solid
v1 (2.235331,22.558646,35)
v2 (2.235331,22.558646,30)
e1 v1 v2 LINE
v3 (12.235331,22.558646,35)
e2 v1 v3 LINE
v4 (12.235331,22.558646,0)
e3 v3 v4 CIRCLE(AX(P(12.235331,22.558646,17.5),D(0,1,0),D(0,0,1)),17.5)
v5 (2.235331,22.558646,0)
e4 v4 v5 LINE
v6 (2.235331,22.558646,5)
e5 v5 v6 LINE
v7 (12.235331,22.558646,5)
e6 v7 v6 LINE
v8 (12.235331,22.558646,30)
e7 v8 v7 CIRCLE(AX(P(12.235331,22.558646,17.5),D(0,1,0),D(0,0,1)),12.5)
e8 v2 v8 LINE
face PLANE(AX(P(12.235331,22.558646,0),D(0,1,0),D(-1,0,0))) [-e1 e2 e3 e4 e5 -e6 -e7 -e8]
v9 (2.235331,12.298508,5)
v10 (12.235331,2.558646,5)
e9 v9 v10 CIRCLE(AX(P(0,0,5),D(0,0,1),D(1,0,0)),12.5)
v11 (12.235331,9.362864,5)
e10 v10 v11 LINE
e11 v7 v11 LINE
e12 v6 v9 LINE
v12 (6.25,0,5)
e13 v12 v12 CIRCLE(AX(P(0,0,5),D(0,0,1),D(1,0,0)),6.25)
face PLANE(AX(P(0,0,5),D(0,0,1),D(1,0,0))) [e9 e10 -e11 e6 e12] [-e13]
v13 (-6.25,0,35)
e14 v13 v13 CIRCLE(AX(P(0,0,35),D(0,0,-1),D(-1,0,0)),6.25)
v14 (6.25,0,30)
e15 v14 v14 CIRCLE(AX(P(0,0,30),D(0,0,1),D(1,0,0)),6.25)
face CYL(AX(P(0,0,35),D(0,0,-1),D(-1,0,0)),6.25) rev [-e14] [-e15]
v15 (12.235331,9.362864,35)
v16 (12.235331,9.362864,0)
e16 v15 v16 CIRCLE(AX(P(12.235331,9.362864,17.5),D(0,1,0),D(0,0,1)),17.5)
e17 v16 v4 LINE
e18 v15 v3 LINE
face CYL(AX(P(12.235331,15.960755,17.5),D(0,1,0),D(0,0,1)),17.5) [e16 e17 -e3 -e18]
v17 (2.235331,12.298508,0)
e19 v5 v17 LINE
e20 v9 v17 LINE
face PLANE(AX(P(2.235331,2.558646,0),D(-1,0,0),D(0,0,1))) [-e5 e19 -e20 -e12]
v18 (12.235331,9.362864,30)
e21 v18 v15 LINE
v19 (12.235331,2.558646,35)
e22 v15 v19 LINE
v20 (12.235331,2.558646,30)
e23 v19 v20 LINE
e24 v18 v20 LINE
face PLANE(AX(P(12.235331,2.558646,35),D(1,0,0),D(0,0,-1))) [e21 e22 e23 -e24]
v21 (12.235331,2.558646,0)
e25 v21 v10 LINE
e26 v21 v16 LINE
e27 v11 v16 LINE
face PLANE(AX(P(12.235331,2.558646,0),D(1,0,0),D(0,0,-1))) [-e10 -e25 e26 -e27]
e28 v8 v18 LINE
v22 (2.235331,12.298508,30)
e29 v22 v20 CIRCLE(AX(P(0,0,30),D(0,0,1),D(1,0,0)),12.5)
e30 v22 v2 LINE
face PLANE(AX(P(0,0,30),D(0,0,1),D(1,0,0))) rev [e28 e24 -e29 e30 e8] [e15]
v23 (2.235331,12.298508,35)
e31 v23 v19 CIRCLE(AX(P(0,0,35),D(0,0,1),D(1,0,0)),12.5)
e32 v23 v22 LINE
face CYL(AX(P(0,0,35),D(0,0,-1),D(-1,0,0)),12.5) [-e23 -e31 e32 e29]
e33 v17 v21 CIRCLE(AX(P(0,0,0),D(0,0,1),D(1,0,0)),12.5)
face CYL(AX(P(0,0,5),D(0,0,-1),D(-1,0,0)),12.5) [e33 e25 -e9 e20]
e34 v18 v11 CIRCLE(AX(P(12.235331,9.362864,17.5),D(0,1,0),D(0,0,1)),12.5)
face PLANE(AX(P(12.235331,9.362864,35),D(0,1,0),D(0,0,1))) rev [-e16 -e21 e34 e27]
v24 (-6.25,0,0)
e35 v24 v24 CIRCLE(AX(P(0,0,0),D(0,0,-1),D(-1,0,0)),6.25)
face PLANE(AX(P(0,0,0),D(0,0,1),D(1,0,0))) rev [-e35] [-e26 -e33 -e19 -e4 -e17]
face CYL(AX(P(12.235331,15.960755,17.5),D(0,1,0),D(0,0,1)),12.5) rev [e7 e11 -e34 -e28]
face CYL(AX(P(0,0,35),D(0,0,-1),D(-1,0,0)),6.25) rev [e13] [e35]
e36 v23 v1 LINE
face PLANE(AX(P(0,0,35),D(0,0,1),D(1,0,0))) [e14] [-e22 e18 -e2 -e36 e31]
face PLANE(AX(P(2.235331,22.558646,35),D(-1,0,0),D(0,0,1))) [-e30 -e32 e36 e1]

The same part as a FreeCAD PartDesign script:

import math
import FreeCAD as App
import Part
import Sketcher
from FreeCAD import Vector
Q = App.Units.Quantity

doc = App.newDocument("Part")
params = doc.addObject("Spreadsheet::Sheet", "Params")
for row, (alias, value) in enumerate([
    ("sketch1_diameter", "25 mm"),
    ("pad1_length", "5 mm"),
    ("sketch2_width", "10 mm"),
    ("sketch2_height", "20 mm"),
    ("pad2_length", "5 mm"),
    ("sketch3_diameter", "25 mm"),
    ("pad3_length", "5 mm"),
    ("sketch4_width", "10 mm"),
    ("sketch4_height", "20 mm"),
    ("pad4_length", "5 mm"),
    ("sketch5_diameter", "12.5 mm"),
    ("pad5_length", "35 mm"),
    ("sketch6_height", "5 mm"),
    ("sketch7_radius", "15 mm"),
], start=1):
    params.set(f"A{row}", alias)
    params.set(f"B{row}", "=" + value)
    params.setAlias(f"B{row}", alias)

body = doc.addObject("PartDesign::Body", "Body")

sketch1 = doc.addObject("Sketcher::SketchObject", "Sketch")
body.addObject(sketch1)
sketch1.AttachmentSupport = (doc.XY_Plane, [""])
sketch1.MapMode = "FlatFace"
sketch1.addGeometry(Part.Circle(Vector(0, 0, 0), Vector(0, 0, 1), 12), False)
sketch1.addConstraint(Sketcher.Constraint("Coincident", 0, 3, -1, 1))
sketch1.addConstraint(Sketcher.Constraint("Diameter", 0, Q("25 mm")))
sketch1.setExpression("Constraints[1]", "Params.sketch1_diameter")
pad1 = doc.addObject("PartDesign::Pad", "Pad")
body.addObject(pad1)
pad1.Profile = sketch1
pad1.setExpression("Length", "Params.pad1_length")

sketch2 = doc.addObject("Sketcher::SketchObject", "Sketch001")
body.addObject(sketch2)
sketch2.AttachmentSupport = (doc.XY_Plane, [""])
sketch2.MapMode = "FlatFace"
sketch2.AttachmentOffset = App.Placement(Vector(0, 0, 5), App.Rotation())
sketch2.addGeometry(Part.LineSegment(Vector(2, 23, 0), Vector(2, 3, 0)), False)
sketch2.addGeometry(Part.LineSegment(Vector(2, 3, 0), Vector(12, 3, 0)), False)
sketch2.addGeometry(Part.LineSegment(Vector(12, 3, 0), Vector(12, 23, 0)), False)
sketch2.addGeometry(Part.LineSegment(Vector(12, 23, 0), Vector(2, 23, 0)), False)
sketch2.addConstraint(Sketcher.Constraint("Coincident", 0, 2, 1, 1))
sketch2.addConstraint(Sketcher.Constraint("Coincident", 1, 2, 2, 1))
sketch2.addConstraint(Sketcher.Constraint("Coincident", 2, 2, 3, 1))
sketch2.addConstraint(Sketcher.Constraint("Coincident", 3, 2, 0, 1))
sketch2.addConstraint(Sketcher.Constraint("Vertical", 0))
sketch2.addConstraint(Sketcher.Constraint("Horizontal", 1))
sketch2.addConstraint(Sketcher.Constraint("Vertical", 2))
sketch2.addConstraint(Sketcher.Constraint("Horizontal", 3))
sketch2.addConstraint(Sketcher.Constraint("DistanceX", 1, 1, 1, 2, Q("10 mm")))
sketch2.addConstraint(Sketcher.Constraint("DistanceY", 0, 2, 0, 1, Q("20 mm")))
sketch2.addConstraint(Sketcher.Constraint("DistanceX", -1, 1, 0, 2, Q("2.235331 mm")))
sketch2.addConstraint(Sketcher.Constraint("DistanceY", -1, 1, 0, 2, Q("2.558646 mm")))
sketch2.setExpression("Constraints[8]", "Params.sketch2_width")
sketch2.setExpression("Constraints[9]", "Params.sketch2_height")
pad2 = doc.addObject("PartDesign::Pad", "Pad001")
body.addObject(pad2)
pad2.Profile = sketch2
pad2.setExpression("Length", "Params.pad2_length")
pad2.Reversed = True
body2 = doc.addObject("PartDesign::Body", "Body001")

sketch3 = doc.addObject("Sketcher::SketchObject", "Sketch002")
body2.addObject(sketch3)
sketch3.AttachmentSupport = (doc.getObject("XY_Plane001"), [""])
sketch3.MapMode = "FlatFace"
sketch3.AttachmentOffset = App.Placement(Vector(0, 0, 30), App.Rotation())
sketch3.addGeometry(Part.Circle(Vector(0, 0, 0), Vector(0, 0, 1), 12), False)
sketch3.addConstraint(Sketcher.Constraint("Coincident", 0, 3, -1, 1))
sketch3.addConstraint(Sketcher.Constraint("Diameter", 0, Q("25 mm")))
sketch3.setExpression("Constraints[1]", "Params.sketch3_diameter")
pad3 = doc.addObject("PartDesign::Pad", "Pad002")
body2.addObject(pad3)
pad3.Profile = sketch3
pad3.setExpression("Length", "Params.pad3_length")

sketch4 = doc.addObject("Sketcher::SketchObject", "Sketch003")
body2.addObject(sketch4)
sketch4.AttachmentSupport = (doc.getObject("XY_Plane001"), [""])
sketch4.MapMode = "FlatFace"
sketch4.AttachmentOffset = App.Placement(Vector(0, 0, 30), App.Rotation())
sketch4.addGeometry(Part.LineSegment(Vector(12, 23, 0), Vector(12, 3, 0)), False)
sketch4.addGeometry(Part.LineSegment(Vector(12, 3, 0), Vector(2, 3, 0)), False)
sketch4.addGeometry(Part.LineSegment(Vector(2, 3, 0), Vector(2, 23, 0)), False)
sketch4.addGeometry(Part.LineSegment(Vector(2, 23, 0), Vector(12, 23, 0)), False)
sketch4.addConstraint(Sketcher.Constraint("Coincident", 0, 2, 1, 1))
sketch4.addConstraint(Sketcher.Constraint("Coincident", 1, 2, 2, 1))
sketch4.addConstraint(Sketcher.Constraint("Coincident", 2, 2, 3, 1))
sketch4.addConstraint(Sketcher.Constraint("Coincident", 3, 2, 0, 1))
sketch4.addConstraint(Sketcher.Constraint("Vertical", 0))
sketch4.addConstraint(Sketcher.Constraint("Horizontal", 1))
sketch4.addConstraint(Sketcher.Constraint("Vertical", 2))
sketch4.addConstraint(Sketcher.Constraint("Horizontal", 3))
sketch4.addConstraint(Sketcher.Constraint("DistanceX", 1, 2, 1, 1, Q("10 mm")))
sketch4.addConstraint(Sketcher.Constraint("DistanceY", 0, 2, 0, 1, Q("20 mm")))
sketch4.addConstraint(Sketcher.Constraint("DistanceX", -1, 1, 0, 2, Q("12.235331 mm")))
sketch4.addConstraint(Sketcher.Constraint("DistanceY", -1, 1, 0, 2, Q("2.558646 mm")))
sketch4.setExpression("Constraints[8]", "Params.sketch4_width")
sketch4.setExpression("Constraints[9]", "Params.sketch4_height")
pad4 = doc.addObject("PartDesign::Pad", "Pad003")
body2.addObject(pad4)
pad4.Profile = sketch4
pad4.setExpression("Length", "Params.pad4_length")
body3 = doc.addObject("PartDesign::Body", "Body002")

sketch5 = doc.addObject("Sketcher::SketchObject", "Sketch004")
body3.addObject(sketch5)
sketch5.AttachmentSupport = (doc.getObject("XY_Plane002"), [""])
sketch5.MapMode = "FlatFace"
sketch5.addGeometry(Part.Circle(Vector(0, 0, 0), Vector(0, 0, 1), 6), False)
sketch5.addConstraint(Sketcher.Constraint("Coincident", 0, 3, -1, 1))
sketch5.addConstraint(Sketcher.Constraint("Diameter", 0, Q("12.5 mm")))
sketch5.setExpression("Constraints[1]", "Params.sketch5_diameter")
pad5 = doc.addObject("PartDesign::Pad", "Pad004")
body3.addObject(pad5)
pad5.Profile = sketch5
pad5.setExpression("Length", "Params.pad5_length")
doc.recompute()

body4 = doc.addObject("PartDesign::Body", "Body003")
body4.BaseFeature = body3
boolean = doc.addObject("PartDesign::Boolean", "Boolean")
body.addObject(boolean)
boolean.Type = "Cut"
boolean.addObjects([body4])
doc.recompute()

boolean2 = doc.addObject("PartDesign::Boolean", "Boolean001")
body2.addObject(boolean2)
boolean2.Type = "Cut"
boolean2.addObjects([body3])
body.AllowCompound = True
doc.recompute()

boolean3 = doc.addObject("PartDesign::Boolean", "Boolean002")
body.addObject(boolean3)
boolean3.Type = "Fuse"
boolean3.addObjects([body2])

sketch6 = doc.addObject("Sketcher::SketchObject", "Sketch005")
body.addObject(sketch6)
sketch6.AttachmentSupport = (doc.YZ_Plane, [""])
sketch6.MapMode = "FlatFace"
sketch6.AttachmentOffset = App.Placement(Vector(0, 0, 12.235331), App.Rotation())
sketch6.addGeometry(Part.LineSegment(Vector(23, 35, 0), Vector(9, 35, 0)), False)
sketch6.addGeometry(Part.LineSegment(Vector(9, 35, 0), Vector(9, 30, 0)), False)
sketch6.addGeometry(Part.LineSegment(Vector(9, 30, 0), Vector(23, 30, 0)), False)
sketch6.addGeometry(Part.LineSegment(Vector(23, 30, 0), Vector(23, 35, 0)), False)
sketch6.addConstraint(Sketcher.Constraint("Coincident", 0, 2, 1, 1))
sketch6.addConstraint(Sketcher.Constraint("Coincident", 1, 2, 2, 1))
sketch6.addConstraint(Sketcher.Constraint("Coincident", 2, 2, 3, 1))
sketch6.addConstraint(Sketcher.Constraint("Coincident", 3, 2, 0, 1))
sketch6.addConstraint(Sketcher.Constraint("Horizontal", 0))
sketch6.addConstraint(Sketcher.Constraint("Vertical", 1))
sketch6.addConstraint(Sketcher.Constraint("Horizontal", 2))
sketch6.addConstraint(Sketcher.Constraint("Vertical", 3))
sketch6.addConstraint(Sketcher.Constraint("DistanceY", 1, 2, 1, 1, Q("5 mm")))
sketch6.addConstraint(Sketcher.Constraint("DistanceY", -1, 1, 0, 2, Q("35 mm")))
sketch6.addConstraint(Sketcher.Constraint("DistanceX", 0, 2, 0, 1, Q("13.195782 mm")))
sketch6.addConstraint(Sketcher.Constraint("DistanceX", -1, 1, 0, 2, Q("9.362864 mm")))
sketch6.setExpression("Constraints[8]", "Params.sketch6_height")

sketch7 = doc.addObject("Sketcher::SketchObject", "Sketch006")
body.addObject(sketch7)
sketch7.AttachmentSupport = (doc.XZ_Plane, [""])
sketch7.MapMode = "FlatFace"
sketch7.AttachmentOffset = App.Placement(Vector(0, 0, -15.960755), App.Rotation())
sketch7.addGeometry(Part.ArcOfCircle(Part.Circle(Vector(12, 18, 0), Vector(0, 0, 1), 15), math.radians(-90), math.radians(90)), False)
sketch7.addConstraint(Sketcher.Constraint("Radius", 0, Q("15 mm")))
sketch7.addConstraint(Sketcher.Constraint("DistanceY", -1, 1, 0, 3, Q("17.5 mm")))
sketch7.addConstraint(Sketcher.Constraint("DistanceX", -1, 1, 0, 3, Q("12.235331 mm")))
sketch7.addConstraint(Sketcher.Constraint("DistanceX", -1, 1, 0, 1, Q("12.235331 mm")))
sketch7.addConstraint(Sketcher.Constraint("DistanceX", -1, 1, 0, 2, Q("12.235331 mm")))
sketch7.setExpression("Constraints[0]", "Params.sketch7_radius")
doc.recompute()

additivepipe = doc.addObject("PartDesign::AdditivePipe", "AdditivePipe")
body.addObject(additivepipe)
additivepipe.Profile = sketch6
additivepipe.Spine = (sketch7, ["Edge1"])

doc.recompute()
